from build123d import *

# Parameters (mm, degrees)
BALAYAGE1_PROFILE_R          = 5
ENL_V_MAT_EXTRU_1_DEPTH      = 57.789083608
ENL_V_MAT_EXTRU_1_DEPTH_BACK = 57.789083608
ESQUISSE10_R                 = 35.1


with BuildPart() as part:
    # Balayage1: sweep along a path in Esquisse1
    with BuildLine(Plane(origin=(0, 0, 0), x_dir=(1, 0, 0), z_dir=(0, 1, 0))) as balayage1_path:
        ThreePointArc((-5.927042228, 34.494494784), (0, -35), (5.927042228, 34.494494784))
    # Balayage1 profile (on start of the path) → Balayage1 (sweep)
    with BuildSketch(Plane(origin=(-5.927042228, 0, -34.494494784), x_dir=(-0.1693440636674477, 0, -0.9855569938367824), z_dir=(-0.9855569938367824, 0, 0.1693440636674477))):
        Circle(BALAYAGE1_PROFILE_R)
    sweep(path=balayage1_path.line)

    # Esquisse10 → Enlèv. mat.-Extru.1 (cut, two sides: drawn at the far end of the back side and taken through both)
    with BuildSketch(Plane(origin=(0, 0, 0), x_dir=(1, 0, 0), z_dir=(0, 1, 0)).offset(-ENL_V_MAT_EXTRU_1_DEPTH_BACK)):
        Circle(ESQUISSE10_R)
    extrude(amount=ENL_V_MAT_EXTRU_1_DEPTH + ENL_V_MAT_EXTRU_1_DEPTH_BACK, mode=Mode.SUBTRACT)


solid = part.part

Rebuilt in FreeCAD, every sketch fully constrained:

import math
import FreeCAD as App
import Part
import Sketcher
from FreeCAD import Vector
Q = App.Units.Quantity

doc = App.newDocument("Part")
body = doc.addObject("PartDesign::Body", "Body")

sketch1 = body.newObject("Sketcher::SketchObject", "Sketch")
sketch1.Placement = App.Placement(Vector(-5.927042, 0, -34.494495), App.Rotation(Vector(-0.169344064, 0, -0.985556994), Vector(0, -1, 0), Vector(-0.985556994, 0, 0.169344064), "ZXY"))
sketch1.addGeometry(Part.Circle(Vector(0, 0, 0), Vector(0, 0, 1), 5), False)
sketch1.addConstraint([
    Sketcher.Constraint("Coincident", 0, 3, -1, 1),
    Sketcher.Constraint("Diameter", 0, Q("10 mm")),
])

sketch2 = body.newObject("Sketcher::SketchObject", "Sketch001")
sketch2.AttachmentSupport = (doc.getObject("XZ_Plane"), [""])
sketch2.MapMode = "FlatFace"
sketch2.addGeometry(Part.ArcOfCircle(Part.Circle(Vector(0, 0, 0), Vector(0, 0, 1), 35), math.radians(-80), math.radians(260)), False)
sketch2.addConstraint([
    Sketcher.Constraint("Coincident", 0, 3, -1, 1),
    Sketcher.Constraint("Radius", 0, Q("35 mm")),
    Sketcher.Constraint("DistanceX", -1, 1, 0, 1, Q("5.927042 mm")),
    Sketcher.Constraint("DistanceX", 0, 2, -1, 1, Q("5.927042 mm")),
])
doc.recompute()

additivepipe = body.newObject("PartDesign::AdditivePipe", "AdditivePipe")
additivepipe.Profile = sketch1
additivepipe.Spine = (sketch2, ["Edge1"])

sketch3 = body.newObject("Sketcher::SketchObject", "Sketch002")
sketch3.AttachmentSupport = (doc.getObject("XZ_Plane"), [""])
sketch3.MapMode = "FlatFace"
sketch3.addGeometry(Part.Circle(Vector(0, 0, 0), Vector(0, 0, 1), 35), False)
sketch3.addConstraint([
    Sketcher.Constraint("Coincident", 0, 3, -1, 1),
    Sketcher.Constraint("Diameter", 0, Q("70.2 mm")),
])
pocket1 = body.newObject("PartDesign::Pocket", "Pocket")
pocket1.Profile = sketch3
pocket1.Type = "ThroughAll"
pocket1.Midplane = True

doc.recompute()
